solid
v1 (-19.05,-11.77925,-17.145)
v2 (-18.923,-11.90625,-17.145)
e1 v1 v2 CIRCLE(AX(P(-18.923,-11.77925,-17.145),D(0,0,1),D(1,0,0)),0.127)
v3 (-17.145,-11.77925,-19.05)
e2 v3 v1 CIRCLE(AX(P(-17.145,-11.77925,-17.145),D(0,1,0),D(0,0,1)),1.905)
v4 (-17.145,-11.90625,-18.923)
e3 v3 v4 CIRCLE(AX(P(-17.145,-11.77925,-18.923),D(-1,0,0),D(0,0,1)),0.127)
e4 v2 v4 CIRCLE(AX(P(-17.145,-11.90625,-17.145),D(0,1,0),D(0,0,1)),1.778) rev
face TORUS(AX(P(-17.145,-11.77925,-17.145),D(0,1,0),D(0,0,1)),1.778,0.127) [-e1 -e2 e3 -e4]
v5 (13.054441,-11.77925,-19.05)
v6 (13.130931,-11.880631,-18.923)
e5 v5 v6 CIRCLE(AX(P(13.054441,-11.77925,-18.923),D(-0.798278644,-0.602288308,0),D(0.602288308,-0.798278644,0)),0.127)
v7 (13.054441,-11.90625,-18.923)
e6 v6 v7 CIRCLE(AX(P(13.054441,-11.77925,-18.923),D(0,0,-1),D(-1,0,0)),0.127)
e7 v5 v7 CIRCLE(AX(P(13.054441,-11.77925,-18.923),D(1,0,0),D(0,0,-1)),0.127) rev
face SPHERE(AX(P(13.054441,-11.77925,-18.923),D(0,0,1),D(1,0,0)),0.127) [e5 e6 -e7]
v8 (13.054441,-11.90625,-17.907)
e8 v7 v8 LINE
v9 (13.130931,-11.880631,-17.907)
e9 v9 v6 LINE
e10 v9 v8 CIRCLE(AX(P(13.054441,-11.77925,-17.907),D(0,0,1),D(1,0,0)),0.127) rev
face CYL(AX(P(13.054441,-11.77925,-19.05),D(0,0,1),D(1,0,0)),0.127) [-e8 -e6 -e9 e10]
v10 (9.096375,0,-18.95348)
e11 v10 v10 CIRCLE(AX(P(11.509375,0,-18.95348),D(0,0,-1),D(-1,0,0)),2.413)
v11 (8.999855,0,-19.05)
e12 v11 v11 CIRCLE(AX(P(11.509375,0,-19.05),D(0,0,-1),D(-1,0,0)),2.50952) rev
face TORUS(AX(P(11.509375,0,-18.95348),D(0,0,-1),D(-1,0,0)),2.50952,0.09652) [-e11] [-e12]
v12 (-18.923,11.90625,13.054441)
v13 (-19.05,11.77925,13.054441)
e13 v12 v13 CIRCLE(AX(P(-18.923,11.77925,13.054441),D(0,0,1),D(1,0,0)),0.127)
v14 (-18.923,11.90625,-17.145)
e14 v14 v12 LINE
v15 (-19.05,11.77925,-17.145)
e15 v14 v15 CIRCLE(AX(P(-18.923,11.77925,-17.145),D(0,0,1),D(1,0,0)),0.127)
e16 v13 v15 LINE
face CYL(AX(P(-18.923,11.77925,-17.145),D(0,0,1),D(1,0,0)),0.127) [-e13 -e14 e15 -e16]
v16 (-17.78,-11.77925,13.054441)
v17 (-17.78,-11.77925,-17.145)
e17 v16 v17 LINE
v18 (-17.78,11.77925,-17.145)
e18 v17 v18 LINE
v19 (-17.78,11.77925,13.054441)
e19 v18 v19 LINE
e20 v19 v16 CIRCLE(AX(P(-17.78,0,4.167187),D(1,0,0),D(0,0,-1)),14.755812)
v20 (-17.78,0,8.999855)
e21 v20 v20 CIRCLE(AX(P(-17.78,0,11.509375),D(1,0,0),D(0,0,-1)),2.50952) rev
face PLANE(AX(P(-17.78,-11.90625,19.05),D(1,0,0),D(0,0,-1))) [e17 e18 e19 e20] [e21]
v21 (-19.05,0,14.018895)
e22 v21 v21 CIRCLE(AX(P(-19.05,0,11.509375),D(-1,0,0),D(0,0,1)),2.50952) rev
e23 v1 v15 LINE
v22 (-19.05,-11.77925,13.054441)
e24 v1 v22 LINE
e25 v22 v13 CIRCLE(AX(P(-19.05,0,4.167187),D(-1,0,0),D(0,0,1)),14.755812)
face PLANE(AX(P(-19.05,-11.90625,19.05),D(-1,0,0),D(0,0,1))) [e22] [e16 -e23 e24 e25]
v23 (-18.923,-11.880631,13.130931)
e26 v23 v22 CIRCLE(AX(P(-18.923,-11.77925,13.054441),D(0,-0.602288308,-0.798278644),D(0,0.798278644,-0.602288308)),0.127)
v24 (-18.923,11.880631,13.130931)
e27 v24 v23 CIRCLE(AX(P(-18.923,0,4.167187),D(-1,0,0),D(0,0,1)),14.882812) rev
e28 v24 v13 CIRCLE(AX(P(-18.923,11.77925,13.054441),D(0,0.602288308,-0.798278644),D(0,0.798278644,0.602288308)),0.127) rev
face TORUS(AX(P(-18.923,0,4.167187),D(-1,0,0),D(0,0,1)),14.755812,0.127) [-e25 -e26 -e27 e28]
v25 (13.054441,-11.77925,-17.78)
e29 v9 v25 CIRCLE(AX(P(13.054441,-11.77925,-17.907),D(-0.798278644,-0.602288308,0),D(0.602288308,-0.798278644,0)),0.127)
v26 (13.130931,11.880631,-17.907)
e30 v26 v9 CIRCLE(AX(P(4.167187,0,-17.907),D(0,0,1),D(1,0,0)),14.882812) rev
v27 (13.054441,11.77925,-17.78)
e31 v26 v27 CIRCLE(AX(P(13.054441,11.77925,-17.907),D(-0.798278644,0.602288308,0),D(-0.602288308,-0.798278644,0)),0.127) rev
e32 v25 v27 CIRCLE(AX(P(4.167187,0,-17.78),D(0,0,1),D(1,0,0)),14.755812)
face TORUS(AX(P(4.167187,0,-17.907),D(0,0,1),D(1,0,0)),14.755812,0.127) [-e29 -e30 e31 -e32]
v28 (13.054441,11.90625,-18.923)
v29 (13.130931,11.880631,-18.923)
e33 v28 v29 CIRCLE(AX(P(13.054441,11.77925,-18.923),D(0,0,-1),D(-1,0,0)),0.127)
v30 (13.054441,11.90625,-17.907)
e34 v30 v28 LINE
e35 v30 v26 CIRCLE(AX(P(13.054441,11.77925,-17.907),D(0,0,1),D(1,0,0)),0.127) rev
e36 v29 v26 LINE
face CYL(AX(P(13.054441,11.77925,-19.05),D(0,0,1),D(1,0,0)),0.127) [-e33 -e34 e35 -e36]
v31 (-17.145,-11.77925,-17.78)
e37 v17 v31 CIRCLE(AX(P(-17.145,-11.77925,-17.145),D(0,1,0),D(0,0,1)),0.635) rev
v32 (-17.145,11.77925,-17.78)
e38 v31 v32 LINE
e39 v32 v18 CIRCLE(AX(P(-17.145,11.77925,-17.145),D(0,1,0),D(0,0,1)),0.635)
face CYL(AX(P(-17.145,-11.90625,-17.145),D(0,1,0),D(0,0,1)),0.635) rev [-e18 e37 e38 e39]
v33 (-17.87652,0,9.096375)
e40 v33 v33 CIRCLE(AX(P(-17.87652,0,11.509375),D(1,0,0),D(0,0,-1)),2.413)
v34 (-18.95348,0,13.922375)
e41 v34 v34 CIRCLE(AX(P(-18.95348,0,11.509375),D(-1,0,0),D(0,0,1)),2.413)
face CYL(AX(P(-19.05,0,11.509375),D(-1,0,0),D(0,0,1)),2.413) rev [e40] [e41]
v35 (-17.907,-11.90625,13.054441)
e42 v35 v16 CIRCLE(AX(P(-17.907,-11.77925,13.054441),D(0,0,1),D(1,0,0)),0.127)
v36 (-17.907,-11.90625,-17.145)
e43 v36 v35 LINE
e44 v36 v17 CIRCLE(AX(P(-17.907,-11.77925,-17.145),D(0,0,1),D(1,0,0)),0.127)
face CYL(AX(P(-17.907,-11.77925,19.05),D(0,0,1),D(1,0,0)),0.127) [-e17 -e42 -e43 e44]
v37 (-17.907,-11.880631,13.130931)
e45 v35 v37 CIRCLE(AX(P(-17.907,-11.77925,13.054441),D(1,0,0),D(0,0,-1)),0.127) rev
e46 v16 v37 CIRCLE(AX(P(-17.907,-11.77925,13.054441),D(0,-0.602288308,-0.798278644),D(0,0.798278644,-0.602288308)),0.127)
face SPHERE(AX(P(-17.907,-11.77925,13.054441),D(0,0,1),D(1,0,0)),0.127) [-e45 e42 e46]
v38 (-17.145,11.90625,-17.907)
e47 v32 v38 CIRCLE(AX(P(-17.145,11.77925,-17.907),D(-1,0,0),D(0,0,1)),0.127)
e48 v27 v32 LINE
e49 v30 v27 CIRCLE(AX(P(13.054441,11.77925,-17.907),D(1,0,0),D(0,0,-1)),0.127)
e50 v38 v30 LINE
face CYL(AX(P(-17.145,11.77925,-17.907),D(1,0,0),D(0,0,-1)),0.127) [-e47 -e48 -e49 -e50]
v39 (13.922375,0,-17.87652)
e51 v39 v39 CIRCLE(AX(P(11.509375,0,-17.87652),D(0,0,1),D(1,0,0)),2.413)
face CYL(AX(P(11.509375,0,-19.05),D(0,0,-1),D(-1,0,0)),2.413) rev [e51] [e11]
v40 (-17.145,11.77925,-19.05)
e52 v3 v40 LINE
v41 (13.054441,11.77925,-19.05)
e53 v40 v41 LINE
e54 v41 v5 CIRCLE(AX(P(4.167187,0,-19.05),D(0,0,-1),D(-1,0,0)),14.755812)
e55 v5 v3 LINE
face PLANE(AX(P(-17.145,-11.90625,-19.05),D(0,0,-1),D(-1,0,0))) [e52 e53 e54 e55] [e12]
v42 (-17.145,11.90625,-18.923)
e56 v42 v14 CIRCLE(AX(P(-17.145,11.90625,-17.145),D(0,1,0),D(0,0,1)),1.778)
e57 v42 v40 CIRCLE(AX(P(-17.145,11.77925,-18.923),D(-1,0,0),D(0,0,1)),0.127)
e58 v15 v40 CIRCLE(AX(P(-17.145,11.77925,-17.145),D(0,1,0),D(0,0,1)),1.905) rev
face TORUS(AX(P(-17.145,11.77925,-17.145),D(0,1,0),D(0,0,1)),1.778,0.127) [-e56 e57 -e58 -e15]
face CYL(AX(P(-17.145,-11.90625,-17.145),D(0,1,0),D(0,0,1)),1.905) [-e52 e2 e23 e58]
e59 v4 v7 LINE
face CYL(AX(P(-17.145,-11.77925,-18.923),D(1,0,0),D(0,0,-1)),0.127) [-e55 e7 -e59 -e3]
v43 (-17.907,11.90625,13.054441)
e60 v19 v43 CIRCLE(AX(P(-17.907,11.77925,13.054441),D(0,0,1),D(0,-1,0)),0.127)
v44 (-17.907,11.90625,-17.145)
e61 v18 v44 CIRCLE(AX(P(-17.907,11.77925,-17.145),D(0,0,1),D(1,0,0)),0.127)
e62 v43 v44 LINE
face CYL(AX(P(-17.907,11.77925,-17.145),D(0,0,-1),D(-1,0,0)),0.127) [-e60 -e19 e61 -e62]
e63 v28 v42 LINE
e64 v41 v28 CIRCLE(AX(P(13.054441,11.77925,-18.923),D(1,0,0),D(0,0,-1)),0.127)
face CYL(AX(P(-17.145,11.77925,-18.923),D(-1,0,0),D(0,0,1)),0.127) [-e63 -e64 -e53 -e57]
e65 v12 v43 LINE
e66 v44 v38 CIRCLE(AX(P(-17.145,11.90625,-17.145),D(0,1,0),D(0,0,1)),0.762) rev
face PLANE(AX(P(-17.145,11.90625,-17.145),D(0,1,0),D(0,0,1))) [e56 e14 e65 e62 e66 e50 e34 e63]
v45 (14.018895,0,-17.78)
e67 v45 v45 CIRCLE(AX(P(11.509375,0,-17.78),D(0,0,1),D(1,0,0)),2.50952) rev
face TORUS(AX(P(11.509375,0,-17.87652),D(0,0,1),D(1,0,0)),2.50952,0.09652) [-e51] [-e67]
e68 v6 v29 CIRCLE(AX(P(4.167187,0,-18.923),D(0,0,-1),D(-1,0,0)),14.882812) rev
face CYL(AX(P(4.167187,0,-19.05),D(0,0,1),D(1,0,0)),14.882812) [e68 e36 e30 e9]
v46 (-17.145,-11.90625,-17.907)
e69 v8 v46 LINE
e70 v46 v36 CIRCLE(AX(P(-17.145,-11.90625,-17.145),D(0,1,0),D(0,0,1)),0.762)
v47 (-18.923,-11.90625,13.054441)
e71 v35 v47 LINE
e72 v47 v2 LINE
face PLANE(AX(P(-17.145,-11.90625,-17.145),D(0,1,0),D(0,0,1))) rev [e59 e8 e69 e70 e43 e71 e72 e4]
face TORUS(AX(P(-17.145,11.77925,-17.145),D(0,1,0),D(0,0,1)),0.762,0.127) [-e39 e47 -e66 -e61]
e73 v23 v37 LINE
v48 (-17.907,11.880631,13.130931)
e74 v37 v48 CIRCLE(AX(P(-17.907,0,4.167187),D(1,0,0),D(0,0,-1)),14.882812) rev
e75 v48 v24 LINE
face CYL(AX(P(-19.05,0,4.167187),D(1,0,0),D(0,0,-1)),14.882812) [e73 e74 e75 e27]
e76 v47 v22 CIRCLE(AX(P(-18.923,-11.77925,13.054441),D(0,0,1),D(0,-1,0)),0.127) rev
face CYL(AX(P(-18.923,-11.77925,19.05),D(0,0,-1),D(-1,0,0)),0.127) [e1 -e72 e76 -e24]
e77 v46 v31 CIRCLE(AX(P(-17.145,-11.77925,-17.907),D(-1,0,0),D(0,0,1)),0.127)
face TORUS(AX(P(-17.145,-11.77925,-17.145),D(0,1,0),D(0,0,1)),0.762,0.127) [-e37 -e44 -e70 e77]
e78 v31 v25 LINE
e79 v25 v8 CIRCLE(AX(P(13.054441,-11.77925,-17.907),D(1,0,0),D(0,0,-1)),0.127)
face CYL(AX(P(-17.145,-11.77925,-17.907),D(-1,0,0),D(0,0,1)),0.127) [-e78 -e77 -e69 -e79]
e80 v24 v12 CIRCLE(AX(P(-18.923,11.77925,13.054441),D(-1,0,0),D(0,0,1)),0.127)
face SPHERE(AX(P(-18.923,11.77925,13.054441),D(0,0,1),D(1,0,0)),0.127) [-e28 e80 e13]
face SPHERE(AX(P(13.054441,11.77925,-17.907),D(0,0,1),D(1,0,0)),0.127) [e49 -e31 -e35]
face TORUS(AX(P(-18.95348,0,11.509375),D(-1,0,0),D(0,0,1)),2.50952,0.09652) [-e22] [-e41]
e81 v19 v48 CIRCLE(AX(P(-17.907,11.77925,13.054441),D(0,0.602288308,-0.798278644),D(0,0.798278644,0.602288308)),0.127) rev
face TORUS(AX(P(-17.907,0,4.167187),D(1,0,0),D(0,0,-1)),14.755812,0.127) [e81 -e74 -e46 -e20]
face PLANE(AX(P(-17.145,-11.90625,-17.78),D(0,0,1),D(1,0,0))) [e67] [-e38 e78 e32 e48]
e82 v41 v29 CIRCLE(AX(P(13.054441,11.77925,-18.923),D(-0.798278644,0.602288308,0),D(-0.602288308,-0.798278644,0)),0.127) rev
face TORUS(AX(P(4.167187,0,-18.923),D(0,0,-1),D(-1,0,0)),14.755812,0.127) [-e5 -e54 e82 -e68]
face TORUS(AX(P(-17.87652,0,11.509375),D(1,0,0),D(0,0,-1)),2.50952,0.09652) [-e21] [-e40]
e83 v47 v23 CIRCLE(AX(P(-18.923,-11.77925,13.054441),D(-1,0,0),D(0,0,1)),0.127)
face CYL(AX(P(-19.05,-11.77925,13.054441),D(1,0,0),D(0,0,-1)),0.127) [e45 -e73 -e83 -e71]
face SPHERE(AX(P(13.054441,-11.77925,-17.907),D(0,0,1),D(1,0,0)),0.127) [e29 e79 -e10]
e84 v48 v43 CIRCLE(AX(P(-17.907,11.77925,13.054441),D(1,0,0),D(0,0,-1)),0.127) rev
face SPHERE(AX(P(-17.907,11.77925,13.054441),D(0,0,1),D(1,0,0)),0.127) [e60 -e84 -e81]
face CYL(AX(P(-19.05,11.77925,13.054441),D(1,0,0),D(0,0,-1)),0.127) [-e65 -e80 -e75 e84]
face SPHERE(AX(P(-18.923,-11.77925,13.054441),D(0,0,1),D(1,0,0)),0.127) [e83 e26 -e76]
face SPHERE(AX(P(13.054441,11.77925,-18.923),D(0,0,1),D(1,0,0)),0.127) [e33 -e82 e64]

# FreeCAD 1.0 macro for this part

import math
import FreeCAD as App
import Part
import Sketcher
from FreeCAD import Vector
Q = App.Units.Quantity


def edges_at(feature, points):
    """Names of the edges that pass closest to the given points."""
    edges = feature.Shape.Edges
    near = lambda p: min(range(len(edges)), key=lambda i: edges[i].distToShape(Part.Vertex(*p))[0])
    return sorted({f"Edge{near(p) + 1}" for p in points})


def add_polygon(sketch, points):
    """Adds a closed chain of lines whose ends are joined by coincident constraints."""
    first, n = sketch.GeometryCount, len(points)
    for a, b in zip(points, points[1:] + points[:1]):
        sketch.addGeometry(Part.LineSegment(App.Vector(*a, 0), App.Vector(*b, 0)), False)
    for i in range(n):
        sketch.addConstraint(Sketcher.Constraint("Coincident", first + i, 2, first + (i + 1) % n, 1))

doc = App.newDocument("Part")
body = doc.addObject("PartDesign::Body", "Body")

# Sketch on XZ plane
sketch1 = body.newObject("Sketcher::SketchObject", "Sketch")
sketch1.AttachmentSupport = (doc.getObject("XZ_Plane"), [""])
sketch1.MapMode = "FlatFace"
sketch1.AttachmentOffset = App.Placement(Vector(0, 0, -0.46875 * 25.4), App.Rotation())
sketch1.addGeometry(Part.LineSegment(Vector(-19.05, 19.05, 0), Vector(-17.78, 19.05, 0)), False)
sketch1.addGeometry(Part.LineSegment(Vector(-17.78, 19.05, 0), Vector(-17.78, -17.145, 0)), False)
sketch1.addGeometry(Part.ArcOfCircle(Part.Circle(Vector(-17.145, -17.145, 0), Vector(0, 0, 1), 0.635), math.radians(180), math.radians(270)), False)
sketch1.addGeometry(Part.LineSegment(Vector(-17.145, -17.78, 0), Vector(19.05, -17.78, 0)), False)
sketch1.addGeometry(Part.LineSegment(Vector(19.05, -17.78, 0), Vector(19.05, -19.05, 0)), False)
sketch1.addGeometry(Part.LineSegment(Vector(19.05, -19.05, 0), Vector(-17.145, -19.05, 0)), False)
sketch1.addGeometry(Part.ArcOfCircle(Part.Circle(Vector(-17.145, -17.145, 0), Vector(0, 0, 1), 1.905), math.radians(-180), math.radians(-90)), False)
sketch1.addGeometry(Part.LineSegment(Vector(-19.05, -17.145, 0), Vector(-19.05, 19.05, 0)), False)
sketch1.addConstraint(Sketcher.Constraint("Coincident", 0, 2, 1, 1))
sketch1.addConstraint(Sketcher.Constraint("Tangent", 1, 2, 2, 1))
sketch1.addConstraint(Sketcher.Constraint("Tangent", 2, 2, 3, 1))
sketch1.addConstraint(Sketcher.Constraint("Coincident", 3, 2, 4, 1))
sketch1.addConstraint(Sketcher.Constraint("Coincident", 4, 2, 5, 1))
sketch1.addConstraint(Sketcher.Constraint("Tangent", 5, 2, 6, 2))
sketch1.addConstraint(Sketcher.Constraint("Tangent", 6, 1, 7, 1))
sketch1.addConstraint(Sketcher.Constraint("Coincident", 7, 2, 0, 1))
sketch1.addConstraint(Sketcher.Constraint("Horizontal", 0))
sketch1.addConstraint(Sketcher.Constraint("Vertical", 1))
sketch1.addConstraint(Sketcher.Constraint("Horizontal", 3))
sketch1.addConstraint(Sketcher.Constraint("Vertical", 4))
sketch1.addConstraint(Sketcher.Constraint("Horizontal", 5))
sketch1.addConstraint(Sketcher.Constraint("Vertical", 7))
sketch1.addConstraint(Sketcher.Constraint("Coincident", 6, 3, 2, 3))
sketch1.addConstraint(Sketcher.Constraint("Symmetric", 4, 2, 7, 2, -1, 1))
sketch1.addConstraint(Sketcher.Constraint("Equal", 5, 1))
sketch1.addConstraint(Sketcher.Constraint("Radius", 2, Q("0.025 in")))
sketch1.addConstraint(Sketcher.Constraint("Radius", 6, Q("0.075 in")))
sketch1.addConstraint(Sketcher.Constraint("DistanceX", 0, 2, -1, 1, Q("0.7 in")))
pad1 = body.newObject("PartDesign::Pad", "Pad")
pad1.Profile = sketch1
pad1.Length = Q("0.9375 in")

# Sketch on XZ plane
sketch2 = body.newObject("Sketcher::SketchObject", "Sketch001")
sketch2.AttachmentSupport = (doc.getObject("XZ_Plane"), [""])
sketch2.MapMode = "FlatFace"
add_polygon(sketch2, [(-19.05, 9.096375), (-19.05, 11.509375), (-17.78, 11.509375), (-17.78, 9.096375)])  # lines 0-3
sketch2.addGeometry(Part.LineSegment(Vector(-19.05, 11.509375, 0), Vector(-17.78, 11.509375, 0)), True)  # axis
sketch2.addConstraint(Sketcher.Constraint("Vertical", 0))
sketch2.addConstraint(Sketcher.Constraint("Horizontal", 1))
sketch2.addConstraint(Sketcher.Constraint("Vertical", 2))
sketch2.addConstraint(Sketcher.Constraint("Horizontal", 3))
sketch2.addConstraint(Sketcher.Constraint("Horizontal", 4))
sketch2.addConstraint(Sketcher.Constraint("Coincident", 4, 1, 0, 2))
sketch2.addConstraint(Sketcher.Constraint("Vertical", 2, 2, 4, 2))
sketch2.addConstraint(Sketcher.Constraint("DistanceX", 1, 1, 1, 2, Q("0.05 in")))
sketch2.addConstraint(Sketcher.Constraint("DistanceX", 1, 2, -1, 1, Q("0.7 in")))
sketch2.addConstraint(Sketcher.Constraint("DistanceY", 0, 1, 0, 2, Q("0.095 in")))
sketch2.addConstraint(Sketcher.Constraint("DistanceY", -1, 1, 0, 2, Q("0.453125 in")))
groove = body.newObject("PartDesign::Groove", "Groove")
groove.Profile = sketch2
groove.ReferenceAxis = (sketch2, ["Axis0"])
groove.Angle = 360

# Sketch on XZ plane
sketch3 = body.newObject("Sketcher::SketchObject", "Sketch002")
sketch3.AttachmentSupport = (doc.getObject("XZ_Plane"), [""])
sketch3.MapMode = "FlatFace"
add_polygon(sketch3, [(11.509375, -19.05), (11.509375, -17.78), (13.922375, -17.78), (13.922375, -19.05)])  # lines 0-3
sketch3.addGeometry(Part.LineSegment(Vector(11.509375, -19.05, 0), Vector(11.509375, -17.78, 0)), True)  # axis
sketch3.addConstraint(Sketcher.Constraint("Vertical", 0))
sketch3.addConstraint(Sketcher.Constraint("Horizontal", 1))
sketch3.addConstraint(Sketcher.Constraint("Vertical", 2))
sketch3.addConstraint(Sketcher.Constraint("Horizontal", 3))
sketch3.addConstraint(Sketcher.Constraint("Vertical", 4))
sketch3.addConstraint(Sketcher.Constraint("Coincident", 4, 1, 3, 2))
sketch3.addConstraint(Sketcher.Constraint("Horizontal", 1, 2, 4, 2))
sketch3.addConstraint(Sketcher.Constraint("DistanceY", 0, 1, 0, 2, Q("0.05 in")))
sketch3.addConstraint(Sketcher.Constraint("DistanceY", 0, 2, -1, 1, Q("0.7 in")))
sketch3.addConstraint(Sketcher.Constraint("DistanceX", 1, 1, 1, 2, Q("0.095 in")))
sketch3.addConstraint(Sketcher.Constraint("DistanceX", -1, 1, 0, 2, Q("0.453125 in")))
groove2 = body.newObject("PartDesign::Groove", "Groove001")
groove2.Profile = sketch3
groove2.ReferenceAxis = (sketch3, ["Axis0"])
groove2.Angle = 360

# Sketch on YZ plane
sketch4 = body.newObject("Sketcher::SketchObject", "Sketch003")
sketch4.AttachmentSupport = (doc.getObject("YZ_Plane"), [""])
sketch4.MapMode = "FlatFace"
sketch4.AttachmentOffset = App.Placement(Vector(0, 0, -0.7 * 25.4), App.Rotation())
sketch4.addGeometry(Part.ArcOfCircle(Part.Circle(Vector(0, 4.167188, 0), Vector(0, 0, 1), 14.882812), math.radians(36.869898), math.radians(90)), False)
sketch4.addGeometry(Part.LineSegment(Vector(11.90625, 13.096875, 0), Vector(11.90625, 19.05, 0)), False)
sketch4.addGeometry(Part.LineSegment(Vector(11.90625, 19.05, 0), Vector(0, 19.05, 0)), False)
sketch4.addGeometry(Part.ArcOfCircle(Part.Circle(Vector(0, 4.167188, 0), Vector(0, 0, 1), 14.882812), math.radians(90), math.radians(143.130102)), False)
sketch4.addGeometry(Part.LineSegment(Vector(0, 19.05, 0), Vector(-11.90625, 19.05, 0)), False)
sketch4.addGeometry(Part.LineSegment(Vector(-11.90625, 19.05, 0), Vector(-11.90625, 13.096875, 0)), False)
sketch4.addConstraint(Sketcher.Constraint("Coincident", 0, 1, 1, 1))
sketch4.addConstraint(Sketcher.Constraint("Coincident", 1, 2, 2, 1))
sketch4.addConstraint(Sketcher.Constraint("Tangent", 2, 2, 0, 2))
sketch4.addConstraint(Sketcher.Constraint("Tangent", 3, 1, 4, 1))
sketch4.addConstraint(Sketcher.Constraint("Coincident", 4, 2, 5, 1))
sketch4.addConstraint(Sketcher.Constraint("Coincident", 5, 2, 3, 2))
sketch4.addConstraint(Sketcher.Constraint("Vertical", 1))
sketch4.addConstraint(Sketcher.Constraint("Horizontal", 2))
sketch4.addConstraint(Sketcher.Constraint("Horizontal", 4))
sketch4.addConstraint(Sketcher.Constraint("Vertical", 5))
sketch4.addConstraint(Sketcher.Constraint("Coincident", 3, 3, 0, 3))
sketch4.addConstraint(Sketcher.Constraint("Equal", 0, 3))
sketch4.addConstraint(Sketcher.Constraint("Symmetric", 0, 1, 5, 2, -2))
sketch4.addConstraint(Sketcher.Constraint("DistanceX", 2, 2, 2, 1, Q("0.46875 in")))
sketch4.addConstraint(Sketcher.Constraint("DistanceY", 1, 1, 1, 2, Q("0.234375 in")))
sketch4.addConstraint(Sketcher.Constraint("DistanceY", -1, 1, 1, 2, Q("0.75 in")))
pocket1 = body.newObject("PartDesign::Pocket", "Pocket")
pocket1.Profile = sketch4
pocket1.Type = "ThroughAll"

# Sketch on XY plane
sketch5 = body.newObject("Sketcher::SketchObject", "Sketch004")
sketch5.AttachmentSupport = (doc.getObject("XY_Plane"), [""])
sketch5.MapMode = "FlatFace"
sketch5.AttachmentOffset = App.Placement(Vector(0, 0, -0.7 * 25.4), App.Rotation())
sketch5.addGeometry(Part.LineSegment(Vector(19.05, 11.90625, 0), Vector(13.096875, 11.90625, 0)), False)
sketch5.addGeometry(Part.ArcOfCircle(Part.Circle(Vector(4.167188, 0, 0), Vector(0, 0, 1), 14.882812), math.radians(0), math.radians(53.130102)), False)
sketch5.addGeometry(Part.LineSegment(Vector(19.05, 0, 0), Vector(19.05, 11.90625, 0)), False)
sketch5.addGeometry(Part.LineSegment(Vector(19.05, -11.90625, 0), Vector(19.05, 0, 0)), False)
sketch5.addGeometry(Part.ArcOfCircle(Part.Circle(Vector(4.167188, 0, 0), Vector(0, 0, 1), 14.882812), math.radians(-53.130102), math.radians(0)), False)
sketch5.addGeometry(Part.LineSegment(Vector(13.096875, -11.90625, 0), Vector(19.05, -11.90625, 0)), False)
sketch5.addConstraint(Sketcher.Constraint("Coincident", 0, 2, 1, 2))
sketch5.addConstraint(Sketcher.Constraint("Tangent", 1, 1, 2, 1))
sketch5.addConstraint(Sketcher.Constraint("Coincident", 2, 2, 0, 1))
sketch5.addConstraint(Sketcher.Constraint("Tangent", 3, 2, 4, 2))
sketch5.addConstraint(Sketcher.Constraint("Coincident", 4, 1, 5, 1))
sketch5.addConstraint(Sketcher.Constraint("Coincident", 5, 2, 3, 1))
sketch5.addConstraint(Sketcher.Constraint("Horizontal", 0))
sketch5.addConstraint(Sketcher.Constraint("Vertical", 2))
sketch5.addConstraint(Sketcher.Constraint("Vertical", 3))
sketch5.addConstraint(Sketcher.Constraint("Horizontal", 5))
sketch5.addConstraint(Sketcher.Constraint("Coincident", 4, 3, 1, 3))
sketch5.addConstraint(Sketcher.Constraint("Equal", 1, 4))
sketch5.addConstraint(Sketcher.Constraint("Symmetric", 0, 2, 4, 1, -1))
sketch5.addConstraint(Sketcher.Constraint("DistanceX", 0, 2, 0, 1, Q("0.234375 in")))
sketch5.addConstraint(Sketcher.Constraint("DistanceY", 2, 1, 2, 2, Q("0.46875 in")))
sketch5.addConstraint(Sketcher.Constraint("DistanceX", -1, 1, 1, 1, Q("0.75 in")))
pocket2 = body.newObject("PartDesign::Pocket", "Pocket001")
pocket2.Profile = sketch5
pocket2.Type = "ThroughAll"
doc.recompute()

fillet = body.newObject("PartDesign::Fillet", "Fillet")
fillet.Base = (pocket2, edges_at(pocket2, [
    (-19.05, 11.906, -2.024),
    (-17.594, -11.906, -17.594),
    (-2.024, -11.906, -17.78),
    (-18.492, -11.906, -18.492),
    (-17.78, 11.906, -2.024),
    (-17.78, 6.656, 17.479),
    (-18.415, 11.906, 13.097),
    (-19.05, 6.656, 17.479),
    (-19.05, -11.906, -2.024),
    (-17.78, -11.906, -2.024),
    (-18.415, -11.906, 13.097),
    (-2.024, 11.906, -19.05),
    (13.097, 11.906, -18.415),
    (17.479, 6.656, -19.05),
    (17.479, 6.656, -17.78),
    (-2.024, -11.906, -19.05),
    (13.097, -11.906, -18.415),
    (-18.492, 11.906, -18.492),
    (-2.024, 11.906, -17.78),
    (-17.594, 11.906, -17.594),
]))
fillet.Radius = Q("0.005 in")
doc.recompute()

fillet2 = body.newObject("PartDesign::Fillet", "Fillet001")
fillet2.Base = (fillet, edges_at(fillet, [
    (-19.05, 0, 13.922),
    (-17.78, 0, 13.922),
    (9.096, 0, -17.78),
    (9.096, 0, -19.05),
]))
fillet2.Radius = Q("0.0038 in")

doc.recompute()
